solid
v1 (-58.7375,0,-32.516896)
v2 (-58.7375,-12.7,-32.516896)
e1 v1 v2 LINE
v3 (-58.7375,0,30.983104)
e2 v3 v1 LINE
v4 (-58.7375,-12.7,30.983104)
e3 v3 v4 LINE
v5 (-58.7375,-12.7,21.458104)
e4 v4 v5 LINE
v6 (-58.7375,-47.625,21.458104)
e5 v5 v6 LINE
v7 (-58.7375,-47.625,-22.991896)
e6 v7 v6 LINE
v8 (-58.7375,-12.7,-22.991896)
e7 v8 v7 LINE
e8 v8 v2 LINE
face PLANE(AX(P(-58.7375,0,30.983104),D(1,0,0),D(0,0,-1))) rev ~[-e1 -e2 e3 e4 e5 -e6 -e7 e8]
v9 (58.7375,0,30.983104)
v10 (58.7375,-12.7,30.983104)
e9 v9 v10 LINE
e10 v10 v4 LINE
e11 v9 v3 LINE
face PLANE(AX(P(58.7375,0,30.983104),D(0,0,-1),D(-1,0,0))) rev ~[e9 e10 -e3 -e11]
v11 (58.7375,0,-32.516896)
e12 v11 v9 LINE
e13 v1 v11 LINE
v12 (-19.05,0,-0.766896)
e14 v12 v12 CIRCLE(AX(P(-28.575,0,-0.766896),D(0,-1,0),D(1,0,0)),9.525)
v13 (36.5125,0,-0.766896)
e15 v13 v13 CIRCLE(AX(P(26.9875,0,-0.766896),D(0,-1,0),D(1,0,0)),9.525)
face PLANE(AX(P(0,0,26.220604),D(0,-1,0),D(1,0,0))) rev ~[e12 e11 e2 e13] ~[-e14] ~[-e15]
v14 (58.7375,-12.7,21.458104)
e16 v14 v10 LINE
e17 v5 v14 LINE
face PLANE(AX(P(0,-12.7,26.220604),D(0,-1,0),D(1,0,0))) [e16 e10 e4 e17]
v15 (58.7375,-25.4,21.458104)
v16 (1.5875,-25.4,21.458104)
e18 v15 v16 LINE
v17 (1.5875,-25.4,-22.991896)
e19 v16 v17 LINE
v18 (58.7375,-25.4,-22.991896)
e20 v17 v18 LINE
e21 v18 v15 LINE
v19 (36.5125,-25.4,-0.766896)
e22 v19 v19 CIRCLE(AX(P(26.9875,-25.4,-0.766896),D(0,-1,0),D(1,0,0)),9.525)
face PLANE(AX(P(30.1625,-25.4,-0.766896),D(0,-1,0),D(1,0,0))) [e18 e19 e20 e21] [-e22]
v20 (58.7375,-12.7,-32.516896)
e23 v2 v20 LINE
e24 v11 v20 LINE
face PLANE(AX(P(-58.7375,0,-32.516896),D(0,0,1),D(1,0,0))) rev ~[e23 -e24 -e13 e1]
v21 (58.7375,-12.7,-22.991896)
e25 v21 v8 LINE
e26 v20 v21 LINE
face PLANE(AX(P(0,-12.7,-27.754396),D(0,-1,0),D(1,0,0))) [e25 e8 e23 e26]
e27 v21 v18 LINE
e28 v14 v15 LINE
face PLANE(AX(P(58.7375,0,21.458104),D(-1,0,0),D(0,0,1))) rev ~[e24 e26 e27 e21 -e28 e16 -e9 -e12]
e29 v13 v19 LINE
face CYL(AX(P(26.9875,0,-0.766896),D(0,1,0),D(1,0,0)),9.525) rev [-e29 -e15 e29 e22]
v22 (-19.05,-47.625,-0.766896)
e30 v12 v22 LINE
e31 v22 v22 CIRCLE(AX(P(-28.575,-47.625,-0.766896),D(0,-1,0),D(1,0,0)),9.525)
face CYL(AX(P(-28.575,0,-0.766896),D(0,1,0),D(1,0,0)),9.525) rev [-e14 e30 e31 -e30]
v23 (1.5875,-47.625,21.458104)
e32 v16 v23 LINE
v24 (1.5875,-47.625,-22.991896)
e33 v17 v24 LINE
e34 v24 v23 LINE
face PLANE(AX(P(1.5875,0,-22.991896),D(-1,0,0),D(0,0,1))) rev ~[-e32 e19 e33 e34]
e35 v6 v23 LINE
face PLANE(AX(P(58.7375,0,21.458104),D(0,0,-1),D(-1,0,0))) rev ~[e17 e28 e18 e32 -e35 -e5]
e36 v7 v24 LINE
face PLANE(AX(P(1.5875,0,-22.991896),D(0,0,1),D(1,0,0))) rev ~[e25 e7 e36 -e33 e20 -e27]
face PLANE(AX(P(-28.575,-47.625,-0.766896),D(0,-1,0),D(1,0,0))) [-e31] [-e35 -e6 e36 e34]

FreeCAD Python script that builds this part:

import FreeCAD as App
import Part
import Sketcher

V = App.Vector
Q = App.Units.Quantity

doc = App.newDocument("Part")
body = doc.addObject("PartDesign::Body", "Body")

# Sketch on XZ plane
sketch1 = body.newObject("Sketcher::SketchObject", "Sketch")
sketch1.AttachmentSupport = (doc.getObject("XZ_Plane"), [""])
sketch1.MapMode = "FlatFace"
sketch1.addGeometry([
    Part.LineSegment(V(-59, 21, 0), V(-59, -23, 0)),  # 0
    Part.LineSegment(V(-59, -23, 0), V(2, -23, 0)),  # 1
    Part.LineSegment(V(2, -23, 0), V(2, 21, 0)),  # 2
    Part.LineSegment(V(2, 21, 0), V(-59, 21, 0)),  # 3
    Part.Circle(V(-29, -1, 0), V(0, 0, 1), 10),  # 4
], False)
sketch1.addConstraint([
    Sketcher.Constraint("Coincident", 0, 2, 1, 1),
    Sketcher.Constraint("Coincident", 1, 2, 2, 1),
    Sketcher.Constraint("Coincident", 2, 2, 3, 1),
    Sketcher.Constraint("Coincident", 3, 2, 0, 1),
    Sketcher.Constraint("Vertical", 0),
    Sketcher.Constraint("Horizontal", 1),
    Sketcher.Constraint("Vertical", 2),
    Sketcher.Constraint("Horizontal", 3),
    Sketcher.Constraint("Diameter", 4, Q("0.75 in")),
    Sketcher.Constraint("DistanceY", 0, 2, 0, 1, Q("1.75 in")),
    Sketcher.Constraint("DistanceX", 1, 1, 1, 2, Q("2.375 in")),
    Sketcher.Constraint("DistanceX", 4, 3, -1, 1, Q("1.125 in")),
    Sketcher.Constraint("DistanceX", 0, 2, -1, 1, Q("2.3125 in")),
    Sketcher.Constraint("DistanceY", 0, 2, 4, 3, Q("0.875 in")),
    Sketcher.Constraint("DistanceY", 4, 3, -1, 1, 0.766896),
])
pad1 = body.newObject("PartDesign::Pad", "Pad")
pad1.Profile = sketch1
pad1.Length = Q("1.875 in")

# Sketch on XZ plane
sketch2 = body.newObject("Sketcher::SketchObject", "Sketch001")
sketch2.AttachmentSupport = (doc.getObject("XZ_Plane"), [""])
sketch2.MapMode = "FlatFace"
sketch2.addGeometry([
    Part.LineSegment(V(59, -23, 0), V(59, 21, 0)),  # 0
    Part.LineSegment(V(59, 21, 0), V(2, 21, 0)),  # 1
    Part.LineSegment(V(2, 21, 0), V(2, -23, 0)),  # 2
    Part.LineSegment(V(2, -23, 0), V(59, -23, 0)),  # 3
    Part.Circle(V(27, -1, 0), V(0, 0, 1), 10),  # 4
], False)
sketch2.addConstraint([
    Sketcher.Constraint("Coincident", 0, 2, 1, 1),
    Sketcher.Constraint("Coincident", 1, 2, 2, 1),
    Sketcher.Constraint("Coincident", 2, 2, 3, 1),
    Sketcher.Constraint("Coincident", 3, 2, 0, 1),
    Sketcher.Constraint("Vertical", 0),
    Sketcher.Constraint("Horizontal", 1),
    Sketcher.Constraint("Vertical", 2),
    Sketcher.Constraint("Horizontal", 3),
    Sketcher.Constraint("Diameter", 4, Q("0.75 in")),
    Sketcher.Constraint("DistanceX", 1, 2, 4, 3, Q("1 in")),
    Sketcher.Constraint("DistanceX", 1, 2, 1, 1, Q("2.25 in")),
    Sketcher.Constraint("DistanceY", 0, 1, 0, 2, Q("1.75 in")),
    Sketcher.Constraint("DistanceX", -1, 1, 4, 3, Q("1.0625 in")),
    Sketcher.Constraint("DistanceY", 4, 3, 0, 2, Q("0.875 in")),
    Sketcher.Constraint("DistanceY", 4, 3, -1, 1, 0.766896),
])
pad2 = body.newObject("PartDesign::Pad", "Pad001")
pad2.Profile = sketch2
pad2.Length = Q("1 in")

# Sketch on XZ plane
sketch3 = body.newObject("Sketcher::SketchObject", "Sketch002")
sketch3.AttachmentSupport = (doc.getObject("XZ_Plane"), [""])
sketch3.MapMode = "FlatFace"
sketch3.addGeometry([
    Part.LineSegment(V(59, 31, 0), V(-59, 31, 0)),  # 0
    Part.LineSegment(V(-59, 31, 0), V(-59, 21, 0)),  # 1
    Part.LineSegment(V(-59, 21, 0), V(59, 21, 0)),  # 2
    Part.LineSegment(V(59, 21, 0), V(59, 31, 0)),  # 3
    Part.LineSegment(V(-59, -23, 0), V(-59, -33, 0)),  # 4
    Part.LineSegment(V(-59, -33, 0), V(59, -33, 0)),  # 5
    Part.LineSegment(V(59, -33, 0), V(59, -23, 0)),  # 6
    Part.LineSegment(V(59, -23, 0), V(-59, -23, 0)),  # 7
], False)
sketch3.addConstraint([
    Sketcher.Constraint("Coincident", 0, 2, 1, 1),
    Sketcher.Constraint("Coincident", 1, 2, 2, 1),
    Sketcher.Constraint("Coincident", 2, 2, 3, 1),
    Sketcher.Constraint("Coincident", 3, 2, 0, 1),
    Sketcher.Constraint("Coincident", 4, 2, 5, 1),
    Sketcher.Constraint("Coincident", 5, 2, 6, 1),
    Sketcher.Constraint("Coincident", 6, 2, 7, 1),
    Sketcher.Constraint("Coincident", 7, 2, 4, 1),
    Sketcher.Constraint("Horizontal", 0),
    Sketcher.Constraint("Vertical", 1),
    Sketcher.Constraint("Horizontal", 2),
    Sketcher.Constraint("Vertical", 3),
    Sketcher.Constraint("Vertical", 4),
    Sketcher.Constraint("Horizontal", 5),
    Sketcher.Constraint("Vertical", 6),
    Sketcher.Constraint("Horizontal", 7),
    Sketcher.Constraint("Vertical", 1, 2, 4, 2),
    Sketcher.Constraint("Vertical", 3, 2, 5, 2),
    Sketcher.Constraint("Equal", 3, 4),
    Sketcher.Constraint("DistanceY", 4, 2, 0, 2, Q("2.5 in")),
    Sketcher.Constraint("DistanceX", 0, 2, 0, 1, Q("4.625 in")),
    Sketcher.Constraint("DistanceY", 1, 2, 1, 1, Q("0.375 in")),
    Sketcher.Constraint("DistanceX", 0, 2, -1, 1, Q("2.3125 in")),
    Sketcher.Constraint("DistanceY", -1, 1, 0, 2, 30.983104),
])
pad3 = body.newObject("PartDesign::Pad", "Pad002")
pad3.Profile = sketch3
pad3.Length = Q("0.5 in")

doc.recompute()
